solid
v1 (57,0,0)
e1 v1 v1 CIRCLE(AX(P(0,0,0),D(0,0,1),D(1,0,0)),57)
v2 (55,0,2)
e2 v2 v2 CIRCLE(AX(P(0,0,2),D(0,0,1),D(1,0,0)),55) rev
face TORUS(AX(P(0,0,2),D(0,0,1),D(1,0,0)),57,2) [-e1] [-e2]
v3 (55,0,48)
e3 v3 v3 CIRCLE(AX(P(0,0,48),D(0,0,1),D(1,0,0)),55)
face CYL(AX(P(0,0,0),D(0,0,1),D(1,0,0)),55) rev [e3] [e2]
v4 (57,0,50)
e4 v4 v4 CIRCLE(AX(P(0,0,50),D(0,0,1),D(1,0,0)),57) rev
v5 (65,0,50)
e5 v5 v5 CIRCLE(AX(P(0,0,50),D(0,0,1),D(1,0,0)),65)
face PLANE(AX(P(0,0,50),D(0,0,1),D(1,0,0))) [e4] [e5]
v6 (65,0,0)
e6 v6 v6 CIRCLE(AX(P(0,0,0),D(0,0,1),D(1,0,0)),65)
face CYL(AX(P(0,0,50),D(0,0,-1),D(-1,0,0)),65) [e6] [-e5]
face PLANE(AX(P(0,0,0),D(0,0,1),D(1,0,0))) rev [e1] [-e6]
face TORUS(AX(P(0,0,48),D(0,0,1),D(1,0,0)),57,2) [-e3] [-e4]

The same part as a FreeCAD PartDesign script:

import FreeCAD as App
import Part
import Sketcher


def edges_at(feature, points):
    """Names of the edges that pass closest to the given points."""
    edges = feature.Shape.Edges
    near = lambda p: min(range(len(edges)), key=lambda i: edges[i].distToShape(Part.Vertex(*p))[0])
    return sorted({f"Edge{near(p) + 1}" for p in points})

doc = App.newDocument("Part")
params = doc.addObject("Spreadsheet::Sheet", "Params")
for row, (alias, value) in enumerate([
    ("sketch1_diameter", "130 mm"),
    ("pad1_length", "50 mm"),
    ("sketch2_diameter", "110 mm"),
    ("fillet_radius", "2 mm"),
], start=1):
    params.set(f"A{row}", alias)
    params.set(f"B{row}", "=" + value)
    params.setAlias(f"B{row}", alias)

body = doc.addObject("PartDesign::Body", "Body")

# Sketch on XY plane
sketch1 = body.newObject("Sketcher::SketchObject", "Sketch")
sketch1.AttachmentSupport = (doc.getObject("XY_Plane"), [""])
sketch1.MapMode = "FlatFace"
sketch1.addGeometry(Part.Circle(App.Vector(0, 0, 0), App.Vector(0, 0, 1), 65), False)
sketch1.addConstraint(Sketcher.Constraint("Coincident", 0, 3, -1, 1))
sketch1.addConstraint(Sketcher.Constraint("Diameter", 0, 130.0))
sketch1.setExpression("Constraints[1]", "Params.sketch1_diameter")
pad1 = body.newObject("PartDesign::Pad", "Pad")
pad1.Profile = sketch1
pad1.setExpression("Length", "Params.pad1_length")

# Sketch on XY plane
sketch2 = body.newObject("Sketcher::SketchObject", "Sketch001")
sketch2.AttachmentSupport = (doc.getObject("XY_Plane"), [""])
sketch2.MapMode = "FlatFace"
sketch2.AttachmentOffset = App.Placement(App.Vector(0, 0, 50), App.Rotation())
sketch2.addGeometry(Part.Circle(App.Vector(0, 0, 0), App.Vector(0, 0, 1), 55), False)
sketch2.addConstraint(Sketcher.Constraint("Coincident", 0, 3, -1, 1))
sketch2.addConstraint(Sketcher.Constraint("Diameter", 0, 110.0))
sketch2.setExpression("Constraints[1]", "Params.sketch2_diameter")
pocket1 = body.newObject("PartDesign::Pocket", "Pocket")
pocket1.Profile = sketch2
pocket1.Type = "ThroughAll"
doc.recompute()

fillet = body.newObject("PartDesign::Fillet", "Fillet")
fillet.Base = (pocket1, edges_at(pocket1, [(-55, 0, 0), (-55, 0, 50)]))
fillet.setExpression("Radius", "Params.fillet_radius")

doc.recompute()
